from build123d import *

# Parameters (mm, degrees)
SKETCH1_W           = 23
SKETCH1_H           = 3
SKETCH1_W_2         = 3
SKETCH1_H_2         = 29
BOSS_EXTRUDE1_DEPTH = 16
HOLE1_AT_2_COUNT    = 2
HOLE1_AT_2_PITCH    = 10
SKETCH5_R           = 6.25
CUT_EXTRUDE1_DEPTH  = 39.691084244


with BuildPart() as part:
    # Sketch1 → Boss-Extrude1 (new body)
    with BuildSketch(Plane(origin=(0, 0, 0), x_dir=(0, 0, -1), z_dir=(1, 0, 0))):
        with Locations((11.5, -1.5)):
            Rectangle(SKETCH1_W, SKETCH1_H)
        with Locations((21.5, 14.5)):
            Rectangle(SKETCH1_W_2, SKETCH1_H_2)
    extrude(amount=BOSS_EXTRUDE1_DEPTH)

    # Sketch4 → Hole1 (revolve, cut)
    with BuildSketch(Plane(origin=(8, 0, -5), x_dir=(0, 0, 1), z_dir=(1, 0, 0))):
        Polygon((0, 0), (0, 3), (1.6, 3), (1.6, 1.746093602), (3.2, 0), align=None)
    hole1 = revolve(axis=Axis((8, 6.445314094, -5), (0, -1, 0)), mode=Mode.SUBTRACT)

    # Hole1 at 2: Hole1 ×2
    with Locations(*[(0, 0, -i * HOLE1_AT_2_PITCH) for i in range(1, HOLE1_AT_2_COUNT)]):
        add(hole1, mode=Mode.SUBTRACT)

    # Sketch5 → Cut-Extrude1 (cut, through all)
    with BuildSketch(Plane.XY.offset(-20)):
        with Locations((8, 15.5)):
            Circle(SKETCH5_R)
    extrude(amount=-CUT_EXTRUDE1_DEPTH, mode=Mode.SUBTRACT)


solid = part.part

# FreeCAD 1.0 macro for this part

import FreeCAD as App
import Part
import Sketcher

V = App.Vector
Q = App.Units.Quantity


def add_polygon(sketch, points):
    """Adds a closed chain of lines whose ends are joined by coincident constraints."""
    first, n = sketch.GeometryCount, len(points)
    for a, b in zip(points, points[1:] + points[:1]):
        sketch.addGeometry(Part.LineSegment(App.Vector(*a, 0), App.Vector(*b, 0)), False)
    for i in range(n):
        sketch.addConstraint(Sketcher.Constraint("Coincident", first + i, 2, first + (i + 1) % n, 1))

doc = App.newDocument("Part")
params = doc.addObject("Spreadsheet::Sheet", "Params")
for row, (alias, value) in enumerate([
    ("sketch1_width", "3 mm"),
    ("sketch1_width2", "32 mm"),
    ("sketch1_height", "23 mm"),
    ("pad1_length", "16 mm"),
    ("sketch2_width", "3 mm"),
    ("sketch2_height", "3.2 mm"),
    ("sketch2_height2", "1.6 mm"),
    ("groove_angle", "360 deg"),
    ("linearpattern_pitch", "10 mm"),
    ("sketch3_diameter", "12.5 mm"),
], start=1):
    params.set(f"A{row}", alias)
    params.set(f"B{row}", "=" + value)
    params.setAlias(f"B{row}", alias)

body = doc.addObject("PartDesign::Body", "Body")

# Sketch on YZ plane
sketch1 = body.newObject("Sketcher::SketchObject", "Sketch")
sketch1.AttachmentSupport = (doc.getObject("YZ_Plane"), [""])
sketch1.MapMode = "FlatFace"
add_polygon(sketch1, [(0, 0), (-3, 0), (-3, -23), (29, -23), (29, -20), (0, -20)])  # lines 0-5
sketch1.addConstraint([
    Sketcher.Constraint("Horizontal", 0),
    Sketcher.Constraint("Vertical", 1),
    Sketcher.Constraint("Horizontal", 2),
    Sketcher.Constraint("Vertical", 3),
    Sketcher.Constraint("Horizontal", 4),
    Sketcher.Constraint("Vertical", 5),
    Sketcher.Constraint("Coincident", 5, 2, -1, 1),
    Sketcher.Constraint("Equal", 0, 3),
    Sketcher.Constraint("DistanceX", 0, 2, 0, 1, 3.0),
    Sketcher.Constraint("DistanceX", 2, 1, 2, 2, 32.0),
    Sketcher.Constraint("DistanceY", 1, 2, 1, 1, 23.0),
])
sketch1.setExpression("Constraints[14]", "Params.sketch1_width")
sketch1.setExpression("Constraints[15]", "Params.sketch1_width2")
sketch1.setExpression("Constraints[16]", "Params.sketch1_height")
pad1 = body.newObject("PartDesign::Pad", "Pad")
pad1.Profile = sketch1
pad1.setExpression("Length", "Params.pad1_length")

# Sketch on YZ plane
sketch2 = body.newObject("Sketcher::SketchObject", "Sketch001")
sketch2.AttachmentSupport = (doc.getObject("YZ_Plane"), [""])
sketch2.MapMode = "FlatFace"
sketch2.AttachmentOffset = App.Placement(V(0, 0, 8), App.Rotation())
add_polygon(sketch2, [(-3, -5), (0, -5), (0, -1.8), (-1.7, -3.4), (-3, -3.4)])  # lines 0-4
sketch2.addGeometry(Part.LineSegment(V(0, -5, 0), V(-3, -5, 0)), True)  # axis
sketch2.addConstraint([
    Sketcher.Constraint("Horizontal", 0),
    Sketcher.Constraint("Vertical", 1),
    Sketcher.Constraint("Horizontal", 3),
    Sketcher.Constraint("Vertical", 4),
    Sketcher.Constraint("Horizontal", 5),
    Sketcher.Constraint("Coincident", 5, 1, 0, 2),
    Sketcher.Constraint("PointOnObject", 0, 2, -2),
    Sketcher.Constraint("Vertical", 3, 2, 5, 2),
    Sketcher.Constraint("DistanceX", 0, 1, 0, 2, 3.0),
    Sketcher.Constraint("DistanceY", 1, 1, 1, 2, 3.2),
    Sketcher.Constraint("DistanceY", 4, 2, 4, 1, 1.6),
    Sketcher.Constraint("DistanceY", 0, 2, -1, 1, 5.0),
    Sketcher.Constraint("Angle", 2, Q("-137.5 deg")),
])
sketch2.setExpression("Constraints[13]", "Params.sketch2_width")
sketch2.setExpression("Constraints[14]", "Params.sketch2_height")
sketch2.setExpression("Constraints[15]", "Params.sketch2_height2")
groove = body.newObject("PartDesign::Groove", "Groove")
groove.Profile = sketch2
groove.ReferenceAxis = (sketch2, ["Axis0"])
groove.setExpression("Angle", "Params.groove_angle")
doc.recompute()

linearpattern = body.newObject("PartDesign::LinearPattern", "LinearPattern")
linearpattern.Originals = [groove]
linearpattern.Direction = (doc.getObject("Z_Axis"), [""])
linearpattern.Mode = "offset"
linearpattern.setExpression("Offset", "Params.linearpattern_pitch")
linearpattern.Occurrences = 2
linearpattern.Reversed = True
body.Tip = linearpattern

# Sketch on XY plane
sketch3 = body.newObject("Sketcher::SketchObject", "Sketch002")
sketch3.AttachmentSupport = (doc.getObject("XY_Plane"), [""])
sketch3.MapMode = "FlatFace"
sketch3.AttachmentOffset = App.Placement(V(0, 0, -20), App.Rotation())
sketch3.addGeometry(Part.Circle(V(8, 16, 0), V(0, 0, 1), 6), False)
sketch3.addConstraint([
    Sketcher.Constraint("Diameter", 0, 12.5),
    Sketcher.Constraint("DistanceX", -1, 1, 0, 3, 8.0),
    Sketcher.Constraint("DistanceY", -1, 1, 0, 3, 15.5),
])
sketch3.setExpression("Constraints[0]", "Params.sketch3_diameter")
pocket1 = body.newObject("PartDesign::Pocket", "Pocket")
pocket1.Profile = sketch3
pocket1.Type = "ThroughAll"

doc.recompute()
